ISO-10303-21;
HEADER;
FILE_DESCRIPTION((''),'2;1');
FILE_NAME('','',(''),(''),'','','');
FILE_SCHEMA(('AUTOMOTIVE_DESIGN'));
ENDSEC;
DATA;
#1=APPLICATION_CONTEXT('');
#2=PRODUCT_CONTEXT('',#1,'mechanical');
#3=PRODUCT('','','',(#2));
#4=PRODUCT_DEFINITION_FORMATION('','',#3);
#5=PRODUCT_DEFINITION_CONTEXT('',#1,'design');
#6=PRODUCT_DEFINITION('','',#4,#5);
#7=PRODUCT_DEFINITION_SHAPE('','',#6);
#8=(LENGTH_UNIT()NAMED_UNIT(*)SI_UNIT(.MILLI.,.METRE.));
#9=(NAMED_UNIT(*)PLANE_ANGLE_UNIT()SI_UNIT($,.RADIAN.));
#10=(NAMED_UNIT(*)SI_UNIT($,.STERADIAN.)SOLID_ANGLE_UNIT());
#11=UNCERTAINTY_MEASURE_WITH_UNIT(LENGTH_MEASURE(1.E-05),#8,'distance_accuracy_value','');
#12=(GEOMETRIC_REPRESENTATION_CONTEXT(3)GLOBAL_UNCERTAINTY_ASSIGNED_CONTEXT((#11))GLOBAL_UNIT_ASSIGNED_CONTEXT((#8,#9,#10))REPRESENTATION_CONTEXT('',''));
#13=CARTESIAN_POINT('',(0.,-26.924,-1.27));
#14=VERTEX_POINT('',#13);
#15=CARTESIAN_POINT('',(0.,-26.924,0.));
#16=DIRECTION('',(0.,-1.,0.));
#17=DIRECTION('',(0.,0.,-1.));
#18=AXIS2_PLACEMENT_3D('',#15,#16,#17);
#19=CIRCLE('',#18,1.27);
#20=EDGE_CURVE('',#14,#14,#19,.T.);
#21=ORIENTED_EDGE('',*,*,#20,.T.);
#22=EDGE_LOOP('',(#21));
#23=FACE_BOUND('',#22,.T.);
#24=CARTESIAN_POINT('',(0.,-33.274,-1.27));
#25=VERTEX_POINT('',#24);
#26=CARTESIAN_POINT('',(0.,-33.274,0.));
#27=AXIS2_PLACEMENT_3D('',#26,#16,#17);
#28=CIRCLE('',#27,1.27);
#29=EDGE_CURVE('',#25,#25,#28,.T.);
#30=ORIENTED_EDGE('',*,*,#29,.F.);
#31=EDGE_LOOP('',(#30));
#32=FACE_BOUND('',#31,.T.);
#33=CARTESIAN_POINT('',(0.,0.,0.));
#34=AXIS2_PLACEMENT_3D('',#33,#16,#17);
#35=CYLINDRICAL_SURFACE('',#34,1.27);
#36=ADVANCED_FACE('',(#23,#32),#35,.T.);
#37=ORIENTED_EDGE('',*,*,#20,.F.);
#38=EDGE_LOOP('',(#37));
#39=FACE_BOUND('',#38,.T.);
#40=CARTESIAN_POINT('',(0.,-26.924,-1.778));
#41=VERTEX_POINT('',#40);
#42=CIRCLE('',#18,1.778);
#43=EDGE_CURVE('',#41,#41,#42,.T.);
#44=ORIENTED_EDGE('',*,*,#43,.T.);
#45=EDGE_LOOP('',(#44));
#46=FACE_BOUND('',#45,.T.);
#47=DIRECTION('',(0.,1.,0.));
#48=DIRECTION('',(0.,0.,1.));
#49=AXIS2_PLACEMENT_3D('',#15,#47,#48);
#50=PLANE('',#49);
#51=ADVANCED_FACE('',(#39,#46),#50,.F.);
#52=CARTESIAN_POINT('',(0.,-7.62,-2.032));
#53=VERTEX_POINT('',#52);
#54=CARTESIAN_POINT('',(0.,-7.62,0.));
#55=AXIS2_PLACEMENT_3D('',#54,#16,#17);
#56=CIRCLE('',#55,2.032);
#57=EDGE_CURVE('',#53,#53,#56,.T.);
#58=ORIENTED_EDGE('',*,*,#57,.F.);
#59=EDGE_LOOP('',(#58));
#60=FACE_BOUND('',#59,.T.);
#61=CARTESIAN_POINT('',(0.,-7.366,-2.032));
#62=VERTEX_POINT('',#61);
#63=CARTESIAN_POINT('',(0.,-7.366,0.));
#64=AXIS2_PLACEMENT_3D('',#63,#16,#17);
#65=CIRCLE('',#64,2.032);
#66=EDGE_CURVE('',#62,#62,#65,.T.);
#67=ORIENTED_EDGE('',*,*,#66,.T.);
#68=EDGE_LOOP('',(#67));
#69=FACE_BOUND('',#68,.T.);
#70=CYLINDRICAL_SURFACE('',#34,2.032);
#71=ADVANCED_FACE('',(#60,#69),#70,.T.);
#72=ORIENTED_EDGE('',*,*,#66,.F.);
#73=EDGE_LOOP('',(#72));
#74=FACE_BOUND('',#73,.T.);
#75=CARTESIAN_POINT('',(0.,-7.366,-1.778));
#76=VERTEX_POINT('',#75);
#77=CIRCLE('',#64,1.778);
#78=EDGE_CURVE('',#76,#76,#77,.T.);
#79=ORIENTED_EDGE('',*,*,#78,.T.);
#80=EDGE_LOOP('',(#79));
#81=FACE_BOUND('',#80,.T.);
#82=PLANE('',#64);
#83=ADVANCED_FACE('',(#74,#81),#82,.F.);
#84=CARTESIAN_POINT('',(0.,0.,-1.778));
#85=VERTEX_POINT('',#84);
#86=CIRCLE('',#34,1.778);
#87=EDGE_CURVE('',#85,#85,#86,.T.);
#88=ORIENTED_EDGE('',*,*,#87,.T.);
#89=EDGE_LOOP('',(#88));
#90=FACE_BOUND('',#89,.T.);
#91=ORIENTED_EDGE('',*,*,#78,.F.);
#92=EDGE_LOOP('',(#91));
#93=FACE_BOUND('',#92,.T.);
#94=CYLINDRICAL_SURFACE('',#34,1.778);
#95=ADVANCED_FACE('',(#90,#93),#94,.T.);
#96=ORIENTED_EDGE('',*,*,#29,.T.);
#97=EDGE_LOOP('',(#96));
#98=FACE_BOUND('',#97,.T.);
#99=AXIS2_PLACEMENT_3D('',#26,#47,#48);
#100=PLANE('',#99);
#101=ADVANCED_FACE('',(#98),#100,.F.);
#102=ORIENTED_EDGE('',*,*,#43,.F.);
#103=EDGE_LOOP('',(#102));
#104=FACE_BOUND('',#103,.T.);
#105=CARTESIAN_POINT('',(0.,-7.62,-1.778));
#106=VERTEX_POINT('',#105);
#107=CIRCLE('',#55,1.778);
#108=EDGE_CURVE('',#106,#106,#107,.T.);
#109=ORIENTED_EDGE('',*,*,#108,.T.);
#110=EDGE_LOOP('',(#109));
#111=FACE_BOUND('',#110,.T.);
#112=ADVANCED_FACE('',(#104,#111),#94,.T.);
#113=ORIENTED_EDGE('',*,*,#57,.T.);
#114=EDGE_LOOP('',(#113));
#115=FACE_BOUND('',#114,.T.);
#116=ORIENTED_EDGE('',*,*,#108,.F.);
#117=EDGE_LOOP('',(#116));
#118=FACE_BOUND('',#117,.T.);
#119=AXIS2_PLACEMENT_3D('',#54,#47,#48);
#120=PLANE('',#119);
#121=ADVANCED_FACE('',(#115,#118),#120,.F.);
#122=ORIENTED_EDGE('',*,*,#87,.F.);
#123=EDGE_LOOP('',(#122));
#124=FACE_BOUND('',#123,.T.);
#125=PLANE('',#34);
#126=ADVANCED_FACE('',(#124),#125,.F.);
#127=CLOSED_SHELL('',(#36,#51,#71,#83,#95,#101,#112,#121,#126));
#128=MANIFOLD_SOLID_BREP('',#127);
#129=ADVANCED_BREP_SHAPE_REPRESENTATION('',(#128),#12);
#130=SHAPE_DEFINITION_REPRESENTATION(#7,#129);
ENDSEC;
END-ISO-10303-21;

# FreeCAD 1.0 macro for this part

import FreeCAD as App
import Part
import Sketcher
Q = App.Units.Quantity


def add_polygon(sketch, points):
    """Adds a closed chain of lines whose ends are joined by coincident constraints."""
    first, n = sketch.GeometryCount, len(points)
    for a, b in zip(points, points[1:] + points[:1]):
        sketch.addGeometry(Part.LineSegment(App.Vector(*a, 0), App.Vector(*b, 0)), False)
    for i in range(n):
        sketch.addConstraint(Sketcher.Constraint("Coincident", first + i, 2, first + (i + 1) % n, 1))

doc = App.newDocument("Part")
body = doc.addObject("PartDesign::Body", "Body")

sketch1 = body.newObject("Sketcher::SketchObject", "Sketch")
sketch1.AttachmentSupport = (doc.getObject("XY_Plane"), [""])
sketch1.MapMode = "FlatFace"
add_polygon(sketch1, [(0, 0), (0, -33.27), (1.27, -33.27), (1.27, -26.92), (1.78, -26.92), (1.78, -7.62), (2.03, -7.62), (2.03, -7.37), (1.78, -7.37), (1.78, 0)])
sketch1.addConstraint([
    Sketcher.Constraint("Vertical", 0),
    Sketcher.Constraint("Horizontal", 1),
    Sketcher.Constraint("Vertical", 2),
    Sketcher.Constraint("Horizontal", 3),
    Sketcher.Constraint("Vertical", 4),
    Sketcher.Constraint("Horizontal", 5),
    Sketcher.Constraint("Vertical", 6),
    Sketcher.Constraint("Horizontal", 7),
    Sketcher.Constraint("Vertical", 8),
    Sketcher.Constraint("Horizontal", 9),
    Sketcher.Constraint("Coincident", 9, 2, -1, 1),
    Sketcher.Constraint("Vertical", 4, 2, 7, 2),
    Sketcher.Constraint("Equal", 7, 6),
    Sketcher.Constraint("DistanceX", 1, 1, 1, 2, Q("0.05 in")),
    Sketcher.Constraint("DistanceX", 3, 1, 3, 2, Q("0.02 in")),
    Sketcher.Constraint("DistanceX", 5, 1, 5, 2, Q("0.01 in")),
    Sketcher.Constraint("DistanceY", 0, 2, 0, 1, Q("1.31 in")),
    Sketcher.Constraint("DistanceY", 2, 1, 2, 2, Q("0.25 in")),
    Sketcher.Constraint("DistanceY", 4, 1, 4, 2, Q("0.76 in")),
])
revolution = body.newObject("PartDesign::Revolution", "Revolution")
revolution.Profile = sketch1
revolution.ReferenceAxis = (sketch1, ["V_Axis"])
revolution.Angle = 360

doc.recompute()
